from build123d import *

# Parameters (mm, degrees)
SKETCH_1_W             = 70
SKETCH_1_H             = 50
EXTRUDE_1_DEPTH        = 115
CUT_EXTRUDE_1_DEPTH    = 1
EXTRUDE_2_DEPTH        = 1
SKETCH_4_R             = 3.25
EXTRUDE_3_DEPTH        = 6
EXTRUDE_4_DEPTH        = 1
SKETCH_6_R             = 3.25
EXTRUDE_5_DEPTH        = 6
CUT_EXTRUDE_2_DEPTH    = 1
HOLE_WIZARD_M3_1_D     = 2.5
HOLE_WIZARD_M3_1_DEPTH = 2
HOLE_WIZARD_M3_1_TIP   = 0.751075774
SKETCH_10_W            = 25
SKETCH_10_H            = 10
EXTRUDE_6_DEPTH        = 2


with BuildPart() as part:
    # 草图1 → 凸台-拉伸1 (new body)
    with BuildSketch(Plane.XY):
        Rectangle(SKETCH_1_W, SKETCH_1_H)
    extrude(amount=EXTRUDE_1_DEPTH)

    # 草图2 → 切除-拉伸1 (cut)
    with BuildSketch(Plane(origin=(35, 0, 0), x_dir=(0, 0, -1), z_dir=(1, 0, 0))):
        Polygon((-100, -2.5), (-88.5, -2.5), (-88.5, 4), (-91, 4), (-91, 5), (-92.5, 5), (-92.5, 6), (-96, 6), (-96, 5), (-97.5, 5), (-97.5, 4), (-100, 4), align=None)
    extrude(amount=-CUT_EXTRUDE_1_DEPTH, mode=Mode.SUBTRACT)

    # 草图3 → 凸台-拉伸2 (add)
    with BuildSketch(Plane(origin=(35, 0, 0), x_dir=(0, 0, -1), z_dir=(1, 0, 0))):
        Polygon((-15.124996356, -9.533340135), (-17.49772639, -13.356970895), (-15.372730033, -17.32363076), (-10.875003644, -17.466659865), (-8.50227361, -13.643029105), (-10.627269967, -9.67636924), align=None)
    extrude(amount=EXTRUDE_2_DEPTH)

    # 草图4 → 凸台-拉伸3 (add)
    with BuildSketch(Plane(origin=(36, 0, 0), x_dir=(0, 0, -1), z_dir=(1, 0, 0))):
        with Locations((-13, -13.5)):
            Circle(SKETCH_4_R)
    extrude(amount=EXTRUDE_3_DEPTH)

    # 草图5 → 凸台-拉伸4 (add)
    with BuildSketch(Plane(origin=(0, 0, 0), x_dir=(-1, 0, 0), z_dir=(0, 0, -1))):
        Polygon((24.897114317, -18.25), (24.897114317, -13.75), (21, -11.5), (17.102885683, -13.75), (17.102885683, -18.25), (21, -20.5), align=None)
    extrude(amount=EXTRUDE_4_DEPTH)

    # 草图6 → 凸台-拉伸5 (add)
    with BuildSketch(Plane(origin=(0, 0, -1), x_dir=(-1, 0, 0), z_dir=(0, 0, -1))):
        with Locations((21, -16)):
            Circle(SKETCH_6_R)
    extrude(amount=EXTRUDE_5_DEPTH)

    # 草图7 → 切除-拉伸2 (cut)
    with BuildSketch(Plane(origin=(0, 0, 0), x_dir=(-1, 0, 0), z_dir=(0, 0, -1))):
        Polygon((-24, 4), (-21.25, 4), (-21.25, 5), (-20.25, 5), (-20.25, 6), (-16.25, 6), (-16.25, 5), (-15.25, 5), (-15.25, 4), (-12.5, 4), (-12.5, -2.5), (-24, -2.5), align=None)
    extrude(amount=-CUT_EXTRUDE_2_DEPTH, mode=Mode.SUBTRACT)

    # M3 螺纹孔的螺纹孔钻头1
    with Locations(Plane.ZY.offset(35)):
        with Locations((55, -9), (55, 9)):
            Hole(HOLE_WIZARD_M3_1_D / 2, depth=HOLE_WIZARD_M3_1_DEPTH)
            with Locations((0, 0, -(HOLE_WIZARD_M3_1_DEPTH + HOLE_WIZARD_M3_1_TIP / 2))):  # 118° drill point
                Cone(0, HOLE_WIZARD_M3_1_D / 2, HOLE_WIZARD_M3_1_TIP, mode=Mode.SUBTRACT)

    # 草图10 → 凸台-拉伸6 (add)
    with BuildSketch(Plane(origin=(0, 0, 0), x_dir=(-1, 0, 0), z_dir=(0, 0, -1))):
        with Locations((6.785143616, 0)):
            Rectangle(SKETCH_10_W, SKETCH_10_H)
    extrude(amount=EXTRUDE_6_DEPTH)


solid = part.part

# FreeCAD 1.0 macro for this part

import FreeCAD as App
import Part
import Sketcher
Q = App.Units.Quantity

doc = App.newDocument("Part")
body = doc.addObject("PartDesign::Body", "Body")

# Sketch on XY plane
sketch1 = body.newObject("Sketcher::SketchObject", "Sketch")
sketch1.AttachmentSupport = (doc.getObject("XY_Plane"), [""])
sketch1.MapMode = "FlatFace"
sketch1.addGeometry([
    Part.LineSegment(App.Vector(-35, 25, 0), App.Vector(-35, -25, 0)),
    Part.LineSegment(App.Vector(-35, -25, 0), App.Vector(35, -25, 0)),
    Part.LineSegment(App.Vector(35, -25, 0), App.Vector(35, 25, 0)),
    Part.LineSegment(App.Vector(35, 25, 0), App.Vector(-35, 25, 0)),
], False)
sketch1.addConstraint([
    Sketcher.Constraint("Coincident", 0, 2, 1, 1),
    Sketcher.Constraint("Coincident", 1, 2, 2, 1),
    Sketcher.Constraint("Coincident", 2, 2, 3, 1),
    Sketcher.Constraint("Coincident", 3, 2, 0, 1),
    Sketcher.Constraint("Vertical", 0),
    Sketcher.Constraint("Horizontal", 1),
    Sketcher.Constraint("Vertical", 2),
    Sketcher.Constraint("Horizontal", 3),
    Sketcher.Constraint("Symmetric", 0, 2, 2, 2, -1, 1),
    Sketcher.Constraint("DistanceX", 1, 1, 1, 2, 70.0),
    Sketcher.Constraint("DistanceY", 0, 2, 0, 1, 50.0),
])
pad1 = body.newObject("PartDesign::Pad", "Pad")
pad1.Profile = sketch1
pad1.Length = 115

# Sketch on YZ plane
sketch2 = body.newObject("Sketcher::SketchObject", "Sketch001")
sketch2.AttachmentSupport = (doc.getObject("YZ_Plane"), [""])
sketch2.MapMode = "FlatFace"
sketch2.AttachmentOffset = App.Placement(App.Vector(0, 0, 35), App.Rotation())
sketch2.addGeometry([
    Part.LineSegment(App.Vector(-2.5, 100, 0), App.Vector(-2.5, 88.5, 0)),  # 0
    Part.LineSegment(App.Vector(-2.5, 88.5, 0), App.Vector(4, 88.5, 0)),  # 1
    Part.LineSegment(App.Vector(4, 88.5, 0), App.Vector(4, 91, 0)),  # 2
    Part.LineSegment(App.Vector(4, 91, 0), App.Vector(5, 91, 0)),  # 3
    Part.LineSegment(App.Vector(5, 91, 0), App.Vector(5, 92.5, 0)),  # 4
    Part.LineSegment(App.Vector(5, 92.5, 0), App.Vector(6, 92.5, 0)),  # 5
    Part.LineSegment(App.Vector(6, 92.5, 0), App.Vector(6, 96, 0)),  # 6
    Part.LineSegment(App.Vector(6, 96, 0), App.Vector(5, 96, 0)),  # 7
    Part.LineSegment(App.Vector(5, 96, 0), App.Vector(5, 97.5, 0)),  # 8
    Part.LineSegment(App.Vector(5, 97.5, 0), App.Vector(4, 97.5, 0)),  # 9
    Part.LineSegment(App.Vector(4, 97.5, 0), App.Vector(4, 100, 0)),  # 10
    Part.LineSegment(App.Vector(4, 100, 0), App.Vector(-2.5, 100, 0)),  # 11
], False)
sketch2.addConstraint([
    Sketcher.Constraint("Coincident", 0, 2, 1, 1),
    Sketcher.Constraint("Coincident", 1, 2, 2, 1),
    Sketcher.Constraint("Coincident", 2, 2, 3, 1),
    Sketcher.Constraint("Coincident", 3, 2, 4, 1),
    Sketcher.Constraint("Coincident", 4, 2, 5, 1),
    Sketcher.Constraint("Coincident", 5, 2, 6, 1),
    Sketcher.Constraint("Coincident", 6, 2, 7, 1),
    Sketcher.Constraint("Coincident", 7, 2, 8, 1),
    Sketcher.Constraint("Coincident", 8, 2, 9, 1),
    Sketcher.Constraint("Coincident", 9, 2, 10, 1),
    Sketcher.Constraint("Coincident", 10, 2, 11, 1),
    Sketcher.Constraint("Coincident", 11, 2, 0, 1),
    Sketcher.Constraint("Vertical", 0),
    Sketcher.Constraint("Horizontal", 1),
    Sketcher.Constraint("Vertical", 2),
    Sketcher.Constraint("Horizontal", 3),
    Sketcher.Constraint("Vertical", 4),
    Sketcher.Constraint("Horizontal", 5),
    Sketcher.Constraint("Vertical", 6),
    Sketcher.Constraint("Horizontal", 7),
    Sketcher.Constraint("Vertical", 8),
    Sketcher.Constraint("Horizontal", 9),
    Sketcher.Constraint("Vertical", 10),
    Sketcher.Constraint("Horizontal", 11),
    Sketcher.Constraint("Vertical", 4, 2, 7, 2),
    Sketcher.Constraint("Vertical", 2, 2, 9, 2),
    Sketcher.Constraint("Equal", 3, 5),
    Sketcher.Constraint("Equal", 4, 8),
    Sketcher.Constraint("Equal", 2, 10),
    Sketcher.Constraint("DistanceX", 3, 1, 3, 2, 1.0),
    Sketcher.Constraint("DistanceX", 1, 1, 1, 2, 6.5),
    Sketcher.Constraint("DistanceY", 0, 2, 0, 1, 11.5),
    Sketcher.Constraint("DistanceY", 2, 1, 2, 2, 2.5),
    Sketcher.Constraint("DistanceY", 4, 1, 4, 2, 1.5),
    Sketcher.Constraint("DistanceX", -1, 1, 1, 2, 4.0),
    Sketcher.Constraint("DistanceY", -1, 1, 2, 2, 91.0),
])
pocket1 = body.newObject("PartDesign::Pocket", "Pocket")
pocket1.Profile = sketch2
pocket1.Length = 1

# Sketch on YZ plane
sketch3 = body.newObject("Sketcher::SketchObject", "Sketch002")
sketch3.AttachmentSupport = (doc.getObject("YZ_Plane"), [""])
sketch3.MapMode = "FlatFace"
sketch3.AttachmentOffset = App.Placement(App.Vector(0, 0, 35), App.Rotation())
sketch3.addGeometry([
    Part.LineSegment(App.Vector(-9.5, 15.1, 0), App.Vector(-13.4, 17.5, 0)),  # 0
    Part.LineSegment(App.Vector(-13.4, 17.5, 0), App.Vector(-17.3, 15.4, 0)),  # 1
    Part.LineSegment(App.Vector(-17.3, 15.4, 0), App.Vector(-17.5, 10.9, 0)),  # 2
    Part.LineSegment(App.Vector(-17.5, 10.9, 0), App.Vector(-13.6, 8.5, 0)),  # 3
    Part.LineSegment(App.Vector(-13.6, 8.5, 0), App.Vector(-9.7, 10.6, 0)),  # 4
    Part.LineSegment(App.Vector(-9.7, 10.6, 0), App.Vector(-9.5, 15.1, 0)),  # 5
], False)
sketch3.addConstraint([
    Sketcher.Constraint("Coincident", 0, 2, 1, 1),
    Sketcher.Constraint("Coincident", 1, 2, 2, 1),
    Sketcher.Constraint("Coincident", 2, 2, 3, 1),
    Sketcher.Constraint("Coincident", 3, 2, 4, 1),
    Sketcher.Constraint("Coincident", 4, 2, 5, 1),
    Sketcher.Constraint("Coincident", 5, 2, 0, 1),
    Sketcher.Constraint("Parallel", 0, 3),
    Sketcher.Constraint("Parallel", 1, 4),
    Sketcher.Constraint("Parallel", 2, 5),
    Sketcher.Constraint("Equal", 0, 1),
    Sketcher.Constraint("Equal", 1, 2),
    Sketcher.Constraint("Equal", 2, 3),
    Sketcher.Constraint("Distance", 0, 4.5),
    Sketcher.Constraint("DistanceX", 1, 2, 3, 2, 3.680602),
    Sketcher.Constraint("DistanceX", 0, 2, -1, 1, 13.356971),
    Sketcher.Constraint("DistanceX", 1, 2, -1, 1, 17.323631),
    Sketcher.Constraint("DistanceY", -1, 1, 1, 2, 15.37273),
    Sketcher.Constraint("DistanceX", 2, 2, -1, 1, 17.46666),
])
pad2 = body.newObject("PartDesign::Pad", "Pad001")
pad2.Profile = sketch3
pad2.Length = 1

# Sketch on YZ plane
sketch4 = body.newObject("Sketcher::SketchObject", "Sketch003")
sketch4.AttachmentSupport = (doc.getObject("YZ_Plane"), [""])
sketch4.MapMode = "FlatFace"
sketch4.AttachmentOffset = App.Placement(App.Vector(0, 0, 36), App.Rotation())
sketch4.addGeometry(Part.Circle(App.Vector(-13.5, 13, 0), App.Vector(0, 0, 1), 3.2), False)
sketch4.addConstraint([
    Sketcher.Constraint("Diameter", 0, 6.5),
    Sketcher.Constraint("DistanceY", -1, 1, 0, 3, 13.0),
    Sketcher.Constraint("DistanceX", 0, 3, -1, 1, 13.5),
])
pad3 = body.newObject("PartDesign::Pad", "Pad002")
pad3.Profile = sketch4
pad3.Length = 6

# Sketch on XY plane
sketch5 = body.newObject("Sketcher::SketchObject", "Sketch004")
sketch5.AttachmentSupport = (doc.getObject("XY_Plane"), [""])
sketch5.MapMode = "FlatFace"
sketch5.addGeometry([
    Part.LineSegment(App.Vector(-24.9, -18.2, 0), App.Vector(-24.9, -13.8, 0)),  # 0
    Part.LineSegment(App.Vector(-24.9, -13.8, 0), App.Vector(-21, -11.5, 0)),  # 1
    Part.LineSegment(App.Vector(-21, -11.5, 0), App.Vector(-17.1, -13.8, 0)),  # 2
    Part.LineSegment(App.Vector(-17.1, -13.8, 0), App.Vector(-17.1, -18.2, 0)),  # 3
    Part.LineSegment(App.Vector(-17.1, -18.2, 0), App.Vector(-21, -20.5, 0)),  # 4
    Part.LineSegment(App.Vector(-21, -20.5, 0), App.Vector(-24.9, -18.2, 0)),  # 5
], False)
sketch5.addConstraint([
    Sketcher.Constraint("Coincident", 0, 2, 1, 1),
    Sketcher.Constraint("Coincident", 1, 2, 2, 1),
    Sketcher.Constraint("Coincident", 2, 2, 3, 1),
    Sketcher.Constraint("Coincident", 3, 2, 4, 1),
    Sketcher.Constraint("Coincident", 4, 2, 5, 1),
    Sketcher.Constraint("Coincident", 5, 2, 0, 1),
    Sketcher.Constraint("Vertical", 0),
    Sketcher.Constraint("Vertical", 3),
    Sketcher.Constraint("Parallel", 1, 4),
    Sketcher.Constraint("Parallel", 2, 5),
    Sketcher.Constraint("Horizontal", 0, 2, 2, 2),
    Sketcher.Constraint("Horizontal", 3, 2, 5, 2),
    Sketcher.Constraint("Vertical", 1, 2, 4, 2),
    Sketcher.Constraint("Angle", 1, Q("30 deg")),
    Sketcher.Constraint("DistanceY", 0, 1, 0, 2, 4.5),
    Sketcher.Constraint("DistanceX", 1, 2, -1, 1, 21.0),
    Sketcher.Constraint("DistanceY", 4, 2, 1, 2, 9.0),
    Sketcher.Constraint("DistanceY", 1, 2, -1, 1, 11.5),
])
pad4 = body.newObject("PartDesign::Pad", "Pad003")
pad4.Profile = sketch5
pad4.Length = 1
pad4.Reversed = True

# Sketch on XY plane
sketch6 = body.newObject("Sketcher::SketchObject", "Sketch005")
sketch6.AttachmentSupport = (doc.getObject("XY_Plane"), [""])
sketch6.MapMode = "FlatFace"
sketch6.AttachmentOffset = App.Placement(App.Vector(0, 0, -1), App.Rotation())
sketch6.addGeometry(Part.Circle(App.Vector(-21, -16, 0), App.Vector(0, 0, 1), 3.2), False)
sketch6.addConstraint([
    Sketcher.Constraint("Diameter", 0, 6.5),
    Sketcher.Constraint("DistanceX", 0, 3, -1, 1, 21.0),
    Sketcher.Constraint("DistanceY", 0, 3, -1, 1, 16.0),
])
pad5 = body.newObject("PartDesign::Pad", "Pad004")
pad5.Profile = sketch6
pad5.Length = 6
pad5.Reversed = True

# Sketch on XY plane
sketch7 = body.newObject("Sketcher::SketchObject", "Sketch006")
sketch7.AttachmentSupport = (doc.getObject("XY_Plane"), [""])
sketch7.MapMode = "FlatFace"
sketch7.addGeometry([
    Part.LineSegment(App.Vector(21.2, 4, 0), App.Vector(24, 4, 0)),  # 0
    Part.LineSegment(App.Vector(24, 4, 0), App.Vector(24, -2.5, 0)),  # 1
    Part.LineSegment(App.Vector(24, -2.5, 0), App.Vector(12.5, -2.5, 0)),  # 2
    Part.LineSegment(App.Vector(12.5, -2.5, 0), App.Vector(12.5, 4, 0)),  # 3
    Part.LineSegment(App.Vector(12.5, 4, 0), App.Vector(15.2, 4, 0)),  # 4
    Part.LineSegment(App.Vector(15.2, 4, 0), App.Vector(15.2, 5, 0)),  # 5
    Part.LineSegment(App.Vector(15.2, 5, 0), App.Vector(16.2, 5, 0)),  # 6
    Part.LineSegment(App.Vector(16.2, 5, 0), App.Vector(16.2, 6, 0)),  # 7
    Part.LineSegment(App.Vector(16.2, 6, 0), App.Vector(20.2, 6, 0)),  # 8
    Part.LineSegment(App.Vector(20.2, 6, 0), App.Vector(20.2, 5, 0)),  # 9
    Part.LineSegment(App.Vector(20.2, 5, 0), App.Vector(21.2, 5, 0)),  # 10
    Part.LineSegment(App.Vector(21.2, 5, 0), App.Vector(21.2, 4, 0)),  # 11
], False)
sketch7.addConstraint([
    Sketcher.Constraint("Coincident", 0, 2, 1, 1),
    Sketcher.Constraint("Coincident", 1, 2, 2, 1),
    Sketcher.Constraint("Coincident", 2, 2, 3, 1),
    Sketcher.Constraint("Coincident", 3, 2, 4, 1),
    Sketcher.Constraint("Coincident", 4, 2, 5, 1),
    Sketcher.Constraint("Coincident", 5, 2, 6, 1),
    Sketcher.Constraint("Coincident", 6, 2, 7, 1),
    Sketcher.Constraint("Coincident", 7, 2, 8, 1),
    Sketcher.Constraint("Coincident", 8, 2, 9, 1),
    Sketcher.Constraint("Coincident", 9, 2, 10, 1),
    Sketcher.Constraint("Coincident", 10, 2, 11, 1),
    Sketcher.Constraint("Coincident", 11, 2, 0, 1),
    Sketcher.Constraint("Horizontal", 0),
    Sketcher.Constraint("Vertical", 1),
    Sketcher.Constraint("Horizontal", 2),
    Sketcher.Constraint("Vertical", 3),
    Sketcher.Constraint("Horizontal", 4),
    Sketcher.Constraint("Vertical", 5),
    Sketcher.Constraint("Horizontal", 6),
    Sketcher.Constraint("Vertical", 7),
    Sketcher.Constraint("Horizontal", 8),
    Sketcher.Constraint("Vertical", 9),
    Sketcher.Constraint("Horizontal", 10),
    Sketcher.Constraint("Vertical", 11),
    Sketcher.Constraint("Horizontal", 0, 2, 3, 2),
    Sketcher.Constraint("Horizontal", 6, 2, 9, 2),
    Sketcher.Constraint("Equal", 0, 4),
    Sketcher.Constraint("Equal", 6, 10),
    Sketcher.Constraint("Equal", 10, 5),
    Sketcher.Constraint("Equal", 5, 7),
    Sketcher.Constraint("DistanceX", 6, 1, 6, 2, 1.0),
    Sketcher.Constraint("DistanceX", 8, 1, 8, 2, 4.0),
    Sketcher.Constraint("DistanceX", 2, 2, 2, 1, 11.5),
    Sketcher.Constraint("DistanceY", 1, 2, 1, 1, 6.5),
    Sketcher.Constraint("DistanceX", -1, 1, 0, 2, 24.0),
    Sketcher.Constraint("DistanceY", -1, 1, 0, 2, 4.0),
])
pocket2 = body.newObject("PartDesign::Pocket", "Pocket001")
pocket2.Profile = sketch7
pocket2.Length = 1
pocket2.Reversed = True

# Sketch on YZ plane
sketch8 = body.newObject("Sketcher::SketchObject", "Sketch007")
sketch8.AttachmentSupport = (doc.getObject("YZ_Plane"), [""])
sketch8.MapMode = "FlatFace"
sketch8.AttachmentOffset = App.Placement(App.Vector(0, 0, -35), App.Rotation())
sketch8.addGeometry([
    Part.Circle(App.Vector(-9, 55, 0), App.Vector(0, 0, 1), 1.2),
    Part.Circle(App.Vector(9, 55, 0), App.Vector(0, 0, 1), 1.2),
], False)
sketch8.addConstraint([
    Sketcher.Constraint("Equal", 0, 1),
    Sketcher.Constraint("Symmetric", 0, 3, 1, 3, -2),
    Sketcher.Constraint("Diameter", 0, 2.5),
    Sketcher.Constraint("DistanceX", 0, 3, -1, 1, 9.0),
    Sketcher.Constraint("DistanceY", -1, 1, 0, 3, 55.0),
])
doc.recompute()
hole = body.newObject("PartDesign::Hole", "Hole")
hole.Profile = sketch8
hole.ThreadType = "None"
hole.Diameter = 2.5
hole.DepthType = "Dimension"
hole.Depth = 2
hole.DrillPoint = "Angled"
hole.DrillPointAngle = 118
hole.Reversed = True

# Sketch on XY plane
sketch9 = body.newObject("Sketcher::SketchObject", "Sketch008")
sketch9.AttachmentSupport = (doc.getObject("XY_Plane"), [""])
sketch9.MapMode = "FlatFace"
sketch9.addGeometry([
    Part.LineSegment(App.Vector(6, 5, 0), App.Vector(6, -5, 0)),
    Part.LineSegment(App.Vector(6, -5, 0), App.Vector(-19, -5, 0)),
    Part.LineSegment(App.Vector(-19, -5, 0), App.Vector(-19, 5, 0)),
    Part.LineSegment(App.Vector(-19, 5, 0), App.Vector(6, 5, 0)),
], False)
sketch9.addConstraint([
    Sketcher.Constraint("Coincident", 0, 2, 1, 1),
    Sketcher.Constraint("Coincident", 1, 2, 2, 1),
    Sketcher.Constraint("Coincident", 2, 2, 3, 1),
    Sketcher.Constraint("Coincident", 3, 2, 0, 1),
    Sketcher.Constraint("Vertical", 0),
    Sketcher.Constraint("Horizontal", 1),
    Sketcher.Constraint("Vertical", 2),
    Sketcher.Constraint("Horizontal", 3),
    Sketcher.Constraint("DistanceX", 1, 2, 1, 1, 25.0),
    Sketcher.Constraint("DistanceY", 0, 2, 0, 1, 10.0),
    Sketcher.Constraint("DistanceY", 0, 2, -1, 1, 5.0),
    Sketcher.Constraint("DistanceX", -1, 1, 0, 2, 5.714856),
])
pad6 = body.newObject("PartDesign::Pad", "Pad005")
pad6.Profile = sketch9
pad6.Length = 2
pad6.Reversed = True

doc.recompute()
